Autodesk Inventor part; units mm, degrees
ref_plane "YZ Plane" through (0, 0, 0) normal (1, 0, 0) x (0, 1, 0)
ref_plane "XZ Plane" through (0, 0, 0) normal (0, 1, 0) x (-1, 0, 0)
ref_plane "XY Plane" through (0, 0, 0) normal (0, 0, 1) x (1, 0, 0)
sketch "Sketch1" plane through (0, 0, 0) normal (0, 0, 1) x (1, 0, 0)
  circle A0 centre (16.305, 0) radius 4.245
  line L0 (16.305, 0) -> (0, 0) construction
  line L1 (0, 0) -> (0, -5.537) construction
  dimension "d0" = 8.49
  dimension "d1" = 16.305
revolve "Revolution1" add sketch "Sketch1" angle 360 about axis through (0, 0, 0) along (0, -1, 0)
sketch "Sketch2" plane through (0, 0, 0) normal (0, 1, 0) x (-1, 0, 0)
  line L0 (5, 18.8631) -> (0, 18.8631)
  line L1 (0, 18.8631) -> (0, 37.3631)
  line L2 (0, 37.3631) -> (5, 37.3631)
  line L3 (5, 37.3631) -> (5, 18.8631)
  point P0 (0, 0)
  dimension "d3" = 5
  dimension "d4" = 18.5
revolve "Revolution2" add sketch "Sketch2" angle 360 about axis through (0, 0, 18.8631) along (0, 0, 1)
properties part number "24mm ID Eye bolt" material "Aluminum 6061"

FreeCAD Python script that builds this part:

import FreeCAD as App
import Part
import Sketcher
Q = App.Units.Quantity


def add_polygon(sketch, points):
    """Adds a closed chain of lines whose ends are joined by coincident constraints."""
    first, n = sketch.GeometryCount, len(points)
    for a, b in zip(points, points[1:] + points[:1]):
        sketch.addGeometry(Part.LineSegment(App.Vector(*a, 0), App.Vector(*b, 0)), False)
    for i in range(n):
        sketch.addConstraint(Sketcher.Constraint("Coincident", first + i, 2, first + (i + 1) % n, 1))

doc = App.newDocument("Part")
body = doc.addObject("PartDesign::Body", "Body")

# Sketch on XY plane
sketch1 = doc.addObject("Sketcher::SketchObject", "Sketch")
body.addObject(sketch1)
sketch1.AttachmentSupport = (doc.XY_Plane, [""])
sketch1.MapMode = "FlatFace"
sketch1.addGeometry(Part.Circle(App.Vector(16.3, 0, 0), App.Vector(0, 0, 1), 4.2), False)
sketch1.addConstraint([
    Sketcher.Constraint("PointOnObject", 0, 3, -1),
    Sketcher.Constraint("Diameter", 0, Q("8.49 mm")),
    Sketcher.Constraint("DistanceX", -1, 1, 0, 3, Q("16.305 mm")),
])
revolution = doc.addObject("PartDesign::Revolution", "Revolution")
body.addObject(revolution)
revolution.Profile = sketch1
revolution.ReferenceAxis = (sketch1, ["V_Axis"])
revolution.Angle = 360

# Sketch on XZ plane
sketch2 = doc.addObject("Sketcher::SketchObject", "Sketch001")
body.addObject(sketch2)
sketch2.AttachmentSupport = (doc.XZ_Plane, [""])
sketch2.MapMode = "FlatFace"
add_polygon(sketch2, [(0, 19), (-5, 19), (-5, 37), (0, 37)])  # lines 0-3
sketch2.addConstraint([
    Sketcher.Constraint("Horizontal", 0),
    Sketcher.Constraint("Vertical", 1),
    Sketcher.Constraint("Horizontal", 2),
    Sketcher.Constraint("Vertical", 3),
    Sketcher.Constraint("PointOnObject", 2, 2, -2),
    Sketcher.Constraint("DistanceX", 0, 2, 0, 1, Q("5 mm")),
    Sketcher.Constraint("DistanceY", 1, 1, 1, 2, Q("18.5 mm")),
    Sketcher.Constraint("DistanceY", -1, 1, 0, 2, Q("18.863 mm")),
])
revolution2 = doc.addObject("PartDesign::Revolution", "Revolution001")
body.addObject(revolution2)
revolution2.Profile = sketch2
revolution2.ReferenceAxis = (sketch2, ["V_Axis"])
revolution2.Angle = 360

doc.recompute()
